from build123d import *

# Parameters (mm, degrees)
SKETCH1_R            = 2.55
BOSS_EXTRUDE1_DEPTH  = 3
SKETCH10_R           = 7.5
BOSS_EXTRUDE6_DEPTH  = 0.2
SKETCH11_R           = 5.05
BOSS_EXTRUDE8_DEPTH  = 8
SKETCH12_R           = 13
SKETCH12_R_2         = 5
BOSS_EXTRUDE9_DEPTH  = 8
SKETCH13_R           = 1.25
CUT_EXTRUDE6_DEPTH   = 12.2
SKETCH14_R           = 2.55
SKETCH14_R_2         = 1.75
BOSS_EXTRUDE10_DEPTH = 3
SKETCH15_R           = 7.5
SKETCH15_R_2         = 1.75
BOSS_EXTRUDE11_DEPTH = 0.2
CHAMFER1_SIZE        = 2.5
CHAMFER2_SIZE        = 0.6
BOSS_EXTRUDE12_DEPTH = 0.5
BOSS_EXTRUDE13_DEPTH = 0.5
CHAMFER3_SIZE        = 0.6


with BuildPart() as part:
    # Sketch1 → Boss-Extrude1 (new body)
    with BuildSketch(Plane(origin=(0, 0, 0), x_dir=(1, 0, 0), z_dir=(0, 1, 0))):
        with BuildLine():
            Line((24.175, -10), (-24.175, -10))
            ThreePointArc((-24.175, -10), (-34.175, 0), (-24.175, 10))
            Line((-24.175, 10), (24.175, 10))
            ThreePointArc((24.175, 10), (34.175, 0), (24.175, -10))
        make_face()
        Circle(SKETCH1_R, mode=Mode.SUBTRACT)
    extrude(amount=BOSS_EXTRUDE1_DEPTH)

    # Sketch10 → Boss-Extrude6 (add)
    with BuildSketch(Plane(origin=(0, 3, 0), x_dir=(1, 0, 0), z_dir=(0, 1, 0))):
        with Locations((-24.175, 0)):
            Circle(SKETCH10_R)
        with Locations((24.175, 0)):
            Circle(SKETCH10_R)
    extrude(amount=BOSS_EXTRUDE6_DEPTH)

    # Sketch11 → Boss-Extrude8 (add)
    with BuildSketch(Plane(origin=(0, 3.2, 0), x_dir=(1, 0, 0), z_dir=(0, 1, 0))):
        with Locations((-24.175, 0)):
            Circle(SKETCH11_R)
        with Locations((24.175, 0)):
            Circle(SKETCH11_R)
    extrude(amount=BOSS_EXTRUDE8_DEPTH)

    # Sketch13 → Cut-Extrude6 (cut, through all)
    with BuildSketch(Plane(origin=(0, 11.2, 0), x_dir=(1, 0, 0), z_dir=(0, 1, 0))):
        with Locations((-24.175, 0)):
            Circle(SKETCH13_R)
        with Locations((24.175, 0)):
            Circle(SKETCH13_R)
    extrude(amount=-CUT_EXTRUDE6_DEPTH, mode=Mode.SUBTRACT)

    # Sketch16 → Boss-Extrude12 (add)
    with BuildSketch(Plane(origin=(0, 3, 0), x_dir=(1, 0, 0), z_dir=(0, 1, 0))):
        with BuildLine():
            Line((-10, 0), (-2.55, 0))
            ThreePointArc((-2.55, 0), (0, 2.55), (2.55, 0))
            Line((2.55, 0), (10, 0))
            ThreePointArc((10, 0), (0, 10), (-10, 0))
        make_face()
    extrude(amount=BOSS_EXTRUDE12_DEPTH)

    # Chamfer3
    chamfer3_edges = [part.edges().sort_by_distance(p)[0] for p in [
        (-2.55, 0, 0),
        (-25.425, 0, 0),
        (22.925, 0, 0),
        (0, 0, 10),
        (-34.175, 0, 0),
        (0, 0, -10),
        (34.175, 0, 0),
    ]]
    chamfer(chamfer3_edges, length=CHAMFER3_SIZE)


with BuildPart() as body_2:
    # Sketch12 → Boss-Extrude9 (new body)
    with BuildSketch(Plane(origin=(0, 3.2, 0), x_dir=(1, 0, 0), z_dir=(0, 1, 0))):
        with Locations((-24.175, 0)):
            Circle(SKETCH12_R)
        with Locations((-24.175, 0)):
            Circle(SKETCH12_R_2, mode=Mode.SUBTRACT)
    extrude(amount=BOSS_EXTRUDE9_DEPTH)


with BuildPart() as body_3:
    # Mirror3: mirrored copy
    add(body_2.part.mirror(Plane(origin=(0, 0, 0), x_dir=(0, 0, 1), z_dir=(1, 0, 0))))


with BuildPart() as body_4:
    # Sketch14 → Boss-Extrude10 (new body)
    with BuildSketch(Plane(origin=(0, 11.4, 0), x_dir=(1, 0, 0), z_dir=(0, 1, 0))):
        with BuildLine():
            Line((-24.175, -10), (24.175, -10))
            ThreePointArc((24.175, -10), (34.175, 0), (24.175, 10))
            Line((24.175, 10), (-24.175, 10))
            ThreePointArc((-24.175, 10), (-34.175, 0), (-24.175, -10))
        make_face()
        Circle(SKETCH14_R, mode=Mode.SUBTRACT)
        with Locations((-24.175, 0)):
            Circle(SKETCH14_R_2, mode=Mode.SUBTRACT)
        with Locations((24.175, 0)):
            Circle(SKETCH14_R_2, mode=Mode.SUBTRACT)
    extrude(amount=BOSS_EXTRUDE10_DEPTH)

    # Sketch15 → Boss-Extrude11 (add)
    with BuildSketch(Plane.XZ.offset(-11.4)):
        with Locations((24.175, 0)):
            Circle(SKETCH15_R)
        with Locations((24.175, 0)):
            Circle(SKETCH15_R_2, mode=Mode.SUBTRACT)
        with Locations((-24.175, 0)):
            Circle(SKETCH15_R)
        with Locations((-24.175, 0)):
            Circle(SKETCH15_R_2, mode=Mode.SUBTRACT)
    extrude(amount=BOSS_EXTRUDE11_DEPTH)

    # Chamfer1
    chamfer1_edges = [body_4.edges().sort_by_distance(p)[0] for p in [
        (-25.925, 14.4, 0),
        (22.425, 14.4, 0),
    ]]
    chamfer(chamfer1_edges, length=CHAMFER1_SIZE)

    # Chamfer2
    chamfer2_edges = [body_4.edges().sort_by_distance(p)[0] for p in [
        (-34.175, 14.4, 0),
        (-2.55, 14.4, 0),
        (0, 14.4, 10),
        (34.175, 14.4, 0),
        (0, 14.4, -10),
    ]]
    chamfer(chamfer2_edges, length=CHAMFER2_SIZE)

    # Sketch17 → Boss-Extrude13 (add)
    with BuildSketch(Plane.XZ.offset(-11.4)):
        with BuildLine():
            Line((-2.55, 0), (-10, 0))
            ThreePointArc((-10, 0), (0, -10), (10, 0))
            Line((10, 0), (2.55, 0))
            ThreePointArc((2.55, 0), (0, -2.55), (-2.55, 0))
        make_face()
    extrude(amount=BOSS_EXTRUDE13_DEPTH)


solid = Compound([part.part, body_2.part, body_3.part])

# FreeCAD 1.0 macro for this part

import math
import FreeCAD as App
import Part
import Sketcher

V = App.Vector
Q = App.Units.Quantity


def edges_at(feature, points):
    """Names of the edges that pass closest to the given points."""
    edges = feature.Shape.Edges
    near = lambda p: min(range(len(edges)), key=lambda i: edges[i].distToShape(Part.Vertex(*p))[0])
    return sorted({f"Edge{near(p) + 1}" for p in points})

doc = App.newDocument("Part")
body = doc.addObject("PartDesign::Body", "Body")

sketch1 = body.newObject("Sketcher::SketchObject", "Sketch")
sketch1.AttachmentSupport = (doc.getObject("XZ_Plane"), [""])
sketch1.MapMode = "FlatFace"
sketch1.addGeometry([
    Part.LineSegment(V(-24.175, 10, 0), V(24.175, 10, 0)),
    Part.ArcOfCircle(Part.Circle(V(24.175, 0, 0), V(0, 0, 1), 10), math.radians(-90), math.radians(90)),
    Part.LineSegment(V(24.175, -10, 0), V(-24.175, -10, 0)),
    Part.ArcOfCircle(Part.Circle(V(-24.175, 0, 0), V(0, 0, 1), 10), math.radians(90), math.radians(270)),
    Part.Circle(V(0, 0, 0), V(0, 0, 1), 2.55),
], False)
sketch1.addConstraint([
    Sketcher.Constraint("Tangent", 0, 2, 1, 2),
    Sketcher.Constraint("Tangent", 1, 1, 2, 1),
    Sketcher.Constraint("Tangent", 2, 2, 3, 2),
    Sketcher.Constraint("Tangent", 3, 1, 0, 1),
    Sketcher.Constraint("Horizontal", 0),
    Sketcher.Constraint("Horizontal", 2),
    Sketcher.Constraint("Coincident", 4, 3, -1, 1),
    Sketcher.Constraint("Symmetric", 1, 3, 3, 3, -1, 1),
    Sketcher.Constraint("Radius", 1, Q("10 mm")),
    Sketcher.Constraint("Diameter", 4, Q("5.1 mm")),
    Sketcher.Constraint("DistanceX", 0, 1, 0, 2, Q("48.35 mm")),
])
pad1 = body.newObject("PartDesign::Pad", "Pad")
pad1.Profile = sketch1
pad1.Length = 3
pad1.Reversed = True

sketch2 = body.newObject("Sketcher::SketchObject", "Sketch001")
sketch2.AttachmentSupport = (doc.getObject("XZ_Plane"), [""])
sketch2.MapMode = "FlatFace"
sketch2.AttachmentOffset = App.Placement(V(0, 0, -3), App.Rotation())
sketch2.addGeometry([
    Part.Circle(V(-24.175, 0, 0), V(0, 0, 1), 7.5),
    Part.Circle(V(24.175, 0, 0), V(0, 0, 1), 7.5),
], False)
sketch2.addConstraint([
    Sketcher.Constraint("Equal", 0, 1),
    Sketcher.Constraint("Symmetric", 0, 3, 1, 3, -1, 1),
    Sketcher.Constraint("PointOnObject", 0, 3, -1),
    Sketcher.Constraint("Diameter", 0, Q("15 mm")),
    Sketcher.Constraint("DistanceX", 0, 3, 1, 3, Q("48.35 mm")),
])
pad2 = body.newObject("PartDesign::Pad", "Pad001")
pad2.Profile = sketch2
pad2.Length = 0.2
pad2.Reversed = True

sketch3 = body.newObject("Sketcher::SketchObject", "Sketch002")
sketch3.AttachmentSupport = (doc.getObject("XZ_Plane"), [""])
sketch3.MapMode = "FlatFace"
sketch3.AttachmentOffset = App.Placement(V(0, 0, -3.2), App.Rotation())
sketch3.addGeometry([
    Part.Circle(V(-24.175, 0, 0), V(0, 0, 1), 5.05),
    Part.Circle(V(24.175, 0, 0), V(0, 0, 1), 5.05),
], False)
sketch3.addConstraint([
    Sketcher.Constraint("Equal", 0, 1),
    Sketcher.Constraint("Symmetric", 0, 3, 1, 3, -1, 1),
    Sketcher.Constraint("PointOnObject", 0, 3, -1),
    Sketcher.Constraint("Diameter", 0, Q("10.1 mm")),
    Sketcher.Constraint("DistanceX", 0, 3, 1, 3, Q("48.35 mm")),
])
pad3 = body.newObject("PartDesign::Pad", "Pad002")
pad3.Profile = sketch3
pad3.Length = 8
pad3.Reversed = True

sketch4 = body.newObject("Sketcher::SketchObject", "Sketch003")
sketch4.AttachmentSupport = (doc.getObject("XZ_Plane"), [""])
sketch4.MapMode = "FlatFace"
sketch4.AttachmentOffset = App.Placement(V(0, 0, -11.2), App.Rotation())
sketch4.addGeometry([
    Part.Circle(V(-24.175, 0, 0), V(0, 0, 1), 1.25),
    Part.Circle(V(24.175, 0, 0), V(0, 0, 1), 1.25),
], False)
sketch4.addConstraint([
    Sketcher.Constraint("Equal", 0, 1),
    Sketcher.Constraint("Symmetric", 0, 3, 1, 3, -1, 1),
    Sketcher.Constraint("PointOnObject", 0, 3, -1),
    Sketcher.Constraint("Diameter", 0, Q("2.5 mm")),
    Sketcher.Constraint("DistanceX", 0, 3, 1, 3, Q("48.35 mm")),
])
pocket1 = body.newObject("PartDesign::Pocket", "Pocket")
pocket1.Profile = sketch4
pocket1.Type = "ThroughAll"
pocket1.Reversed = True

sketch5 = body.newObject("Sketcher::SketchObject", "Sketch004")
sketch5.AttachmentSupport = (doc.getObject("XZ_Plane"), [""])
sketch5.MapMode = "FlatFace"
sketch5.AttachmentOffset = App.Placement(V(0, 0, -3), App.Rotation())
sketch5.addGeometry([
    Part.LineSegment(V(-10, 0, 0), V(-2.55, 0, 0)),
    Part.ArcOfCircle(Part.Circle(V(0, 0, 0), V(0, 0, 1), 2.55), math.radians(180), math.radians(360)),
    Part.LineSegment(V(2.55, 0, 0), V(10, 0, 0)),
    Part.ArcOfCircle(Part.Circle(V(0, 0, 0), V(0, 0, 1), 10), math.radians(180), math.radians(360)),
], False)
sketch5.addConstraint([
    Sketcher.Constraint("Coincident", 0, 2, 1, 1),
    Sketcher.Constraint("Coincident", 1, 2, 2, 1),
    Sketcher.Constraint("Coincident", 2, 2, 3, 2),
    Sketcher.Constraint("Coincident", 3, 1, 0, 1),
    Sketcher.Constraint("Horizontal", 0),
    Sketcher.Constraint("Horizontal", 2),
    Sketcher.Constraint("Coincident", 1, 3, -1, 1),
    Sketcher.Constraint("Coincident", 3, 3, -1, 1),
    Sketcher.Constraint("PointOnObject", 0, 2, -1),
    Sketcher.Constraint("PointOnObject", 1, 2, -1),
    Sketcher.Constraint("Radius", 3, Q("10 mm")),
    Sketcher.Constraint("Radius", 1, Q("2.55 mm")),
])
pad4 = body.newObject("PartDesign::Pad", "Pad003")
pad4.Profile = sketch5
pad4.Length = 0.5
pad4.Reversed = True
doc.recompute()

chamfer = body.newObject("PartDesign::Chamfer", "Chamfer")
chamfer.Base = (pad4, edges_at(pad4, [
    (-2.55, 0, 0),
    (-25.425, 0, 0),
    (22.925, 0, 0),
    (0, 0, 10),
    (-34.175, 0, 0),
    (0, 0, -10),
    (34.175, 0, 0),
]))
chamfer.Size = 0.6
body2 = doc.addObject("PartDesign::Body", "Body001")

sketch6 = body2.newObject("Sketcher::SketchObject", "Sketch005")
sketch6.AttachmentSupport = (doc.getObject("XZ_Plane001"), [""])
sketch6.MapMode = "FlatFace"
sketch6.AttachmentOffset = App.Placement(V(0, 0, -3.2), App.Rotation())
sketch6.addGeometry([
    Part.Circle(V(-24.175, 0, 0), V(0, 0, 1), 13),
    Part.Circle(V(-24.175, 0, 0), V(0, 0, 1), 5),
], False)
sketch6.addConstraint([
    Sketcher.Constraint("Coincident", 1, 3, 0, 3),
    Sketcher.Constraint("PointOnObject", 0, 3, -1),
    Sketcher.Constraint("Diameter", 0, Q("26 mm")),
    Sketcher.Constraint("Diameter", 1, Q("10 mm")),
    Sketcher.Constraint("DistanceX", 0, 3, -1, 1, Q("24.175 mm")),
])
pad5 = body2.newObject("PartDesign::Pad", "Pad004")
pad5.Profile = sketch6
pad5.Length = 8
pad5.Reversed = True
body3 = doc.addObject("PartDesign::Body", "Body002")
doc.recompute()

mirroring = doc.addObject("Part::Mirroring", "Mirroring")
mirroring.Source = body2
mirroring.Base = V(0, 0, 0)
mirroring.Normal = V(1, 0, 0)
body3.BaseFeature = mirroring
doc.recompute()
body4 = doc.addObject("PartDesign::Body", "Body003")

sketch7 = body4.newObject("Sketcher::SketchObject", "Sketch006")
sketch7.AttachmentSupport = (doc.getObject("XZ_Plane003"), [""])
sketch7.MapMode = "FlatFace"
sketch7.AttachmentOffset = App.Placement(V(0, 0, -11.4), App.Rotation())
sketch7.addGeometry([
    Part.LineSegment(V(-24.175, 10, 0), V(24.175, 10, 0)),
    Part.ArcOfCircle(Part.Circle(V(24.175, 0, 0), V(0, 0, 1), 10), math.radians(-90), math.radians(90)),
    Part.LineSegment(V(24.175, -10, 0), V(-24.175, -10, 0)),
    Part.ArcOfCircle(Part.Circle(V(-24.175, 0, 0), V(0, 0, 1), 10), math.radians(90), math.radians(270)),
    Part.Circle(V(-24.175, 0, 0), V(0, 0, 1), 1.75),
    Part.Circle(V(0, 0, 0), V(0, 0, 1), 2.55),
    Part.Circle(V(24.175, 0, 0), V(0, 0, 1), 1.75),
], False)
sketch7.addConstraint([
    Sketcher.Constraint("Tangent", 0, 2, 1, 2),
    Sketcher.Constraint("Tangent", 1, 1, 2, 1),
    Sketcher.Constraint("Tangent", 2, 2, 3, 2),
    Sketcher.Constraint("Tangent", 3, 1, 0, 1),
    Sketcher.Constraint("Horizontal", 0),
    Sketcher.Constraint("Horizontal", 2),
    Sketcher.Constraint("Coincident", 5, 3, -1, 1),
    Sketcher.Constraint("Coincident", 4, 3, 3, 3),
    Sketcher.Constraint("Coincident", 6, 3, 1, 3),
    Sketcher.Constraint("Equal", 4, 6),
    Sketcher.Constraint("Symmetric", 1, 3, 3, 3, -1, 1),
    Sketcher.Constraint("Radius", 1, Q("10 mm")),
    Sketcher.Constraint("Diameter", 4, Q("3.5 mm")),
    Sketcher.Constraint("Diameter", 5, Q("5.1 mm")),
    Sketcher.Constraint("DistanceX", 0, 1, 0, 2, Q("48.35 mm")),
])
pad6 = body4.newObject("PartDesign::Pad", "Pad005")
pad6.Profile = sketch7
pad6.Length = 3
pad6.Reversed = True

sketch8 = body4.newObject("Sketcher::SketchObject", "Sketch007")
sketch8.AttachmentSupport = (doc.getObject("XZ_Plane003"), [""])
sketch8.MapMode = "FlatFace"
sketch8.AttachmentOffset = App.Placement(V(0, 0, -11.4), App.Rotation())
sketch8.addGeometry([
    Part.Circle(V(24.175, 0, 0), V(0, 0, 1), 7.5),
    Part.Circle(V(24.175, 0, 0), V(0, 0, 1), 1.75),
    Part.Circle(V(-24.175, 0, 0), V(0, 0, 1), 7.5),
    Part.Circle(V(-24.175, 0, 0), V(0, 0, 1), 1.75),
], False)
sketch8.addConstraint([
    Sketcher.Constraint("Coincident", 1, 3, 0, 3),
    Sketcher.Constraint("Coincident", 3, 3, 2, 3),
    Sketcher.Constraint("Equal", 0, 2),
    Sketcher.Constraint("Equal", 1, 3),
    Sketcher.Constraint("Symmetric", 0, 3, 2, 3, -1, 1),
    Sketcher.Constraint("PointOnObject", 0, 3, -1),
    Sketcher.Constraint("Diameter", 0, Q("15 mm")),
    Sketcher.Constraint("Diameter", 1, Q("3.5 mm")),
    Sketcher.Constraint("DistanceX", 2, 3, 0, 3, Q("48.35 mm")),
])
pad7 = body4.newObject("PartDesign::Pad", "Pad006")
pad7.Profile = sketch8
pad7.Length = 0.2
doc.recompute()

chamfer2 = body4.newObject("PartDesign::Chamfer", "Chamfer001")
chamfer2.Base = (pad7, edges_at(pad7, [(-25.925, 14.4, 0), (22.425, 14.4, 0)]))
chamfer2.Size = 2.5
doc.recompute()

chamfer3 = body4.newObject("PartDesign::Chamfer", "Chamfer002")
chamfer3.Base = (chamfer2, edges_at(chamfer2, [
    (-34.175, 14.4, 0),
    (-2.55, 14.4, 0),
    (0, 14.4, 10),
    (34.175, 14.4, 0),
    (0, 14.4, -10),
]))
chamfer3.Size = 0.6

sketch9 = body4.newObject("Sketcher::SketchObject", "Sketch008")
sketch9.AttachmentSupport = (doc.getObject("XZ_Plane003"), [""])
sketch9.MapMode = "FlatFace"
sketch9.AttachmentOffset = App.Placement(V(0, 0, -11.4), App.Rotation())
sketch9.addGeometry([
    Part.LineSegment(V(-2.55, 0, 0), V(-10, 0, 0)),
    Part.ArcOfCircle(Part.Circle(V(0, 0, 0), V(0, 0, 1), 10), math.radians(180), math.radians(360)),
    Part.LineSegment(V(10, 0, 0), V(2.55, 0, 0)),
    Part.ArcOfCircle(Part.Circle(V(0, 0, 0), V(0, 0, 1), 2.55), math.radians(180), math.radians(360)),
], False)
sketch9.addConstraint([
    Sketcher.Constraint("Coincident", 0, 2, 1, 1),
    Sketcher.Constraint("Coincident", 1, 2, 2, 1),
    Sketcher.Constraint("Coincident", 2, 2, 3, 2),
    Sketcher.Constraint("Coincident", 3, 1, 0, 1),
    Sketcher.Constraint("Horizontal", 0),
    Sketcher.Constraint("Horizontal", 2),
    Sketcher.Constraint("Coincident", 1, 3, -1, 1),
    Sketcher.Constraint("Coincident", 3, 3, -1, 1),
    Sketcher.Constraint("PointOnObject", 0, 2, -1),
    Sketcher.Constraint("PointOnObject", 1, 2, -1),
    Sketcher.Constraint("Radius", 1, Q("10 mm")),
    Sketcher.Constraint("Radius", 3, Q("2.55 mm")),
])
pad8 = body4.newObject("PartDesign::Pad", "Pad007")
pad8.Profile = sketch9
pad8.Length = 0.5
body4.Visibility = False
mirroring.Visibility = False

doc.recompute()
